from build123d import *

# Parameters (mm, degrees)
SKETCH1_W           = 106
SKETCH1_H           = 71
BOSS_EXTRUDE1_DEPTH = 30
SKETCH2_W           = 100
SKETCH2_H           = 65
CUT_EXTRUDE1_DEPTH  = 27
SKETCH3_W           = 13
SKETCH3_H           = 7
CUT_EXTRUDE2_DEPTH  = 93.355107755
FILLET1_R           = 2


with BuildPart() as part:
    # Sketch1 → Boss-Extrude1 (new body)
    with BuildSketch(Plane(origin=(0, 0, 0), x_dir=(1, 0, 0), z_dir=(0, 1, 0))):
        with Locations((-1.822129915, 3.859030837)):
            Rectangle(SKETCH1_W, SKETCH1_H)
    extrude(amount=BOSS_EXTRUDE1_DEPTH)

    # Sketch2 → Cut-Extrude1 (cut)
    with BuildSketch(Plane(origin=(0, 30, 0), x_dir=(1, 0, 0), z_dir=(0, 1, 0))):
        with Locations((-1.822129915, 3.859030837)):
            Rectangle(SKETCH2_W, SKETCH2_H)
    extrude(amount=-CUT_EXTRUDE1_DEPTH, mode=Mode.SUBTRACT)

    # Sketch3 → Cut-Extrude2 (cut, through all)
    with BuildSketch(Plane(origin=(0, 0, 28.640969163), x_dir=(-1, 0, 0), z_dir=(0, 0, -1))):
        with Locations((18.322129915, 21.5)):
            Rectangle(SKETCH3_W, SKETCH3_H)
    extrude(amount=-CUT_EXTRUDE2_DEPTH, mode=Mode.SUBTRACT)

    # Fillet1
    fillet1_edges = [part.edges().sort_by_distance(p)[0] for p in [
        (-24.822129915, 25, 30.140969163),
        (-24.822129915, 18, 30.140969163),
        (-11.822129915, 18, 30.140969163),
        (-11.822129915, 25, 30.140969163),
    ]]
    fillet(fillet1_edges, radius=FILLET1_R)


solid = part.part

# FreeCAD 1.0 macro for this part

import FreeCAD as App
import Part
import Sketcher
from FreeCAD import Vector


def edges_at(feature, points):
    """Names of the edges that pass closest to the given points."""
    edges = feature.Shape.Edges
    near = lambda p: min(range(len(edges)), key=lambda i: edges[i].distToShape(Part.Vertex(*p))[0])
    return sorted({f"Edge{near(p) + 1}" for p in points})

doc = App.newDocument("Part")
body = doc.addObject("PartDesign::Body", "Body")

sketch1 = body.newObject("Sketcher::SketchObject", "Sketch")
sketch1.AttachmentSupport = (doc.getObject("XZ_Plane"), [""])
sketch1.MapMode = "FlatFace"
sketch1.addGeometry([
    Part.LineSegment(Vector(-55, -39, 0), Vector(-55, 32, 0)),
    Part.LineSegment(Vector(-55, 32, 0), Vector(51, 32, 0)),
    Part.LineSegment(Vector(51, 32, 0), Vector(51, -39, 0)),
    Part.LineSegment(Vector(51, -39, 0), Vector(-55, -39, 0)),
], False)
sketch1.addConstraint([
    Sketcher.Constraint("Coincident", 0, 2, 1, 1),
    Sketcher.Constraint("Coincident", 1, 2, 2, 1),
    Sketcher.Constraint("Coincident", 2, 2, 3, 1),
    Sketcher.Constraint("Coincident", 3, 2, 0, 1),
    Sketcher.Constraint("Vertical", 0),
    Sketcher.Constraint("Horizontal", 1),
    Sketcher.Constraint("Vertical", 2),
    Sketcher.Constraint("Horizontal", 3),
    Sketcher.Constraint("DistanceX", 1, 1, 1, 2, 106.0),
    Sketcher.Constraint("DistanceY", 0, 1, 0, 2, 71.0),
    Sketcher.Constraint("DistanceX", 0, 2, -1, 1, 54.82213),
    Sketcher.Constraint("DistanceY", -1, 1, 0, 2, 31.640969),
])
pad1 = body.newObject("PartDesign::Pad", "Pad")
pad1.Profile = sketch1
pad1.Length = 30
pad1.Reversed = True

sketch2 = body.newObject("Sketcher::SketchObject", "Sketch001")
sketch2.AttachmentSupport = (doc.getObject("XZ_Plane"), [""])
sketch2.MapMode = "FlatFace"
sketch2.AttachmentOffset = App.Placement(Vector(0, 0, -30), App.Rotation())
sketch2.addGeometry([
    Part.LineSegment(Vector(-52, -36, 0), Vector(-52, 29, 0)),
    Part.LineSegment(Vector(-52, 29, 0), Vector(48, 29, 0)),
    Part.LineSegment(Vector(48, 29, 0), Vector(48, -36, 0)),
    Part.LineSegment(Vector(48, -36, 0), Vector(-52, -36, 0)),
], False)
sketch2.addConstraint([
    Sketcher.Constraint("Coincident", 0, 2, 1, 1),
    Sketcher.Constraint("Coincident", 1, 2, 2, 1),
    Sketcher.Constraint("Coincident", 2, 2, 3, 1),
    Sketcher.Constraint("Coincident", 3, 2, 0, 1),
    Sketcher.Constraint("Vertical", 0),
    Sketcher.Constraint("Horizontal", 1),
    Sketcher.Constraint("Vertical", 2),
    Sketcher.Constraint("Horizontal", 3),
    Sketcher.Constraint("DistanceX", 1, 1, 1, 2, 100.0),
    Sketcher.Constraint("DistanceY", 0, 1, 0, 2, 65.0),
    Sketcher.Constraint("DistanceX", 0, 2, -1, 1, 51.82213),
    Sketcher.Constraint("DistanceY", -1, 1, 0, 2, 28.640969),
])
pocket1 = body.newObject("PartDesign::Pocket", "Pocket")
pocket1.Profile = sketch2
pocket1.Length = 27
pocket1.Reversed = True

sketch3 = body.newObject("Sketcher::SketchObject", "Sketch002")
sketch3.AttachmentSupport = (doc.getObject("XY_Plane"), [""])
sketch3.MapMode = "FlatFace"
sketch3.AttachmentOffset = App.Placement(Vector(0, 0, 28.640969), App.Rotation())
sketch3.addGeometry([
    Part.LineSegment(Vector(-12, 25, 0), Vector(-12, 18, 0)),
    Part.LineSegment(Vector(-12, 18, 0), Vector(-25, 18, 0)),
    Part.LineSegment(Vector(-25, 18, 0), Vector(-25, 25, 0)),
    Part.LineSegment(Vector(-25, 25, 0), Vector(-12, 25, 0)),
], False)
sketch3.addConstraint([
    Sketcher.Constraint("Coincident", 0, 2, 1, 1),
    Sketcher.Constraint("Coincident", 1, 2, 2, 1),
    Sketcher.Constraint("Coincident", 2, 2, 3, 1),
    Sketcher.Constraint("Coincident", 3, 2, 0, 1),
    Sketcher.Constraint("Vertical", 0),
    Sketcher.Constraint("Horizontal", 1),
    Sketcher.Constraint("Vertical", 2),
    Sketcher.Constraint("Horizontal", 3),
    Sketcher.Constraint("DistanceX", 1, 2, 1, 1, 13.0),
    Sketcher.Constraint("DistanceY", 0, 2, 0, 1, 7.0),
    Sketcher.Constraint("DistanceY", -1, 1, 0, 2, 18.0),
    Sketcher.Constraint("DistanceX", 0, 2, -1, 1, 11.82213),
])
pocket2 = body.newObject("PartDesign::Pocket", "Pocket001")
pocket2.Profile = sketch3
pocket2.Type = "ThroughAll"
pocket2.Reversed = True
doc.recompute()

fillet = body.newObject("PartDesign::Fillet", "Fillet")
fillet.Base = (pocket2, edges_at(pocket2, [
    (-24.822, 25, 30.141),
    (-24.822, 18, 30.141),
    (-11.822, 18, 30.141),
    (-11.822, 25, 30.141),
]))
fillet.Radius = 2

doc.recompute()
